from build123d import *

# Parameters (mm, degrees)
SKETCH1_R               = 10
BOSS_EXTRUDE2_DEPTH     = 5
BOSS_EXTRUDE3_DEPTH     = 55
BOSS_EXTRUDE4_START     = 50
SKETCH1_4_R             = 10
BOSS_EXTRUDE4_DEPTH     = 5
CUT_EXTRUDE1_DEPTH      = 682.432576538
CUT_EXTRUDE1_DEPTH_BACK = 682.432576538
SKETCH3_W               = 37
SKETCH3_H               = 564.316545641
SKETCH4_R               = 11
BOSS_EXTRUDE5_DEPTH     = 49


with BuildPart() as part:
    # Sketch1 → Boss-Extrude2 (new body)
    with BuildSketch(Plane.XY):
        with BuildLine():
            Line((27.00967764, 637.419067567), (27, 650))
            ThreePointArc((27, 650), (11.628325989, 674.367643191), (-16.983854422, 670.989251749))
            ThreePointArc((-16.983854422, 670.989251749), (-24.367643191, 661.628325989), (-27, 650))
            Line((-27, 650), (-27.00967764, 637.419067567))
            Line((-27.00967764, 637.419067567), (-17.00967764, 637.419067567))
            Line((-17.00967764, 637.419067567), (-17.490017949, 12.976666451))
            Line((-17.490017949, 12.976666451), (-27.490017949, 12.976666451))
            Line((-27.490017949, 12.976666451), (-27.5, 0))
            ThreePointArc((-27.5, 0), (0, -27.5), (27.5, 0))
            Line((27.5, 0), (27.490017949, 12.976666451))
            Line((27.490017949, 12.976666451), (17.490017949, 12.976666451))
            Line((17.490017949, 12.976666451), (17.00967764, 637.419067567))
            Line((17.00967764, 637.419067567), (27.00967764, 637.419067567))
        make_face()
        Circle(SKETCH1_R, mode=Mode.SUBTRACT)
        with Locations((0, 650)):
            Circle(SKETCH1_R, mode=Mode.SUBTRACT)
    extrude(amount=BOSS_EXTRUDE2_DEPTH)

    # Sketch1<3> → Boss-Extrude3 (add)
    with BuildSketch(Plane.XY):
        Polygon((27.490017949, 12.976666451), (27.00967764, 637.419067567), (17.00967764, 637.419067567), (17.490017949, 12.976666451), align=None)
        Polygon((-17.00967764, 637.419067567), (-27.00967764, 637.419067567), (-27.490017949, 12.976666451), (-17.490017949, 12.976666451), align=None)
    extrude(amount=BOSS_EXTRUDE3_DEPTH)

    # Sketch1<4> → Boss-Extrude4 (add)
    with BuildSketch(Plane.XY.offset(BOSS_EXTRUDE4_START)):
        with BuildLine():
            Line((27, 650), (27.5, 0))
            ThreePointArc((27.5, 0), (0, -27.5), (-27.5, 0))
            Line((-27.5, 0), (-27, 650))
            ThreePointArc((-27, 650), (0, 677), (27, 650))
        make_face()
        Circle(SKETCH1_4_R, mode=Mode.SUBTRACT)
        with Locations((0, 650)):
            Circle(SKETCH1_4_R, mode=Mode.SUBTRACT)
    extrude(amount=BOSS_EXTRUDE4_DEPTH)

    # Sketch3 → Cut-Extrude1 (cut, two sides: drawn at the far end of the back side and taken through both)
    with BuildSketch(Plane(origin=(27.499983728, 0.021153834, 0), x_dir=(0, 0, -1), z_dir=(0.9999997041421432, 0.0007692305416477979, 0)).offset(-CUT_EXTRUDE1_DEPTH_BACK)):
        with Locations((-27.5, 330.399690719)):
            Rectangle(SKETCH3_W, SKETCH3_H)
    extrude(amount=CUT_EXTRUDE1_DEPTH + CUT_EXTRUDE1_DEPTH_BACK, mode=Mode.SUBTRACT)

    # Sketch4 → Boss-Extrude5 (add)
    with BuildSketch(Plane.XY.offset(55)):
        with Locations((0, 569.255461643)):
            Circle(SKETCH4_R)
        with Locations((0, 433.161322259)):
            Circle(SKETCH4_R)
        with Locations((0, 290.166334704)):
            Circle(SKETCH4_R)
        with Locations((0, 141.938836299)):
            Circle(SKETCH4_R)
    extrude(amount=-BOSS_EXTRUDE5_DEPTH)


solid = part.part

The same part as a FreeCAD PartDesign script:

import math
import FreeCAD as App
import Part
import Sketcher
from FreeCAD import Vector
Q = App.Units.Quantity

doc = App.newDocument("Part")
body = doc.addObject("PartDesign::Body", "Body")

# Sketch on XY plane
sketch1 = doc.addObject("Sketcher::SketchObject", "Sketch")
body.addObject(sketch1)
sketch1.AttachmentSupport = (doc.XY_Plane, [""])
sketch1.MapMode = "FlatFace"
sketch1.addGeometry([
    Part.LineSegment(Vector(27, 637, 0), Vector(27, 650, 0)),  # 0
    Part.ArcOfCircle(Part.Circle(Vector(0, 650, 0), Vector(0, 0, 1), 27), math.radians(0), math.radians(129)),  # 1
    Part.ArcOfCircle(Part.Circle(Vector(0, 650, 0), Vector(0, 0, 1), 27), math.radians(129), math.radians(180)),  # 2
    Part.LineSegment(Vector(-27, 650, 0), Vector(-27, 637, 0)),  # 3
    Part.LineSegment(Vector(-27, 637, 0), Vector(-17, 637, 0)),  # 4
    Part.LineSegment(Vector(-17, 637, 0), Vector(-17, 13, 0)),  # 5
    Part.LineSegment(Vector(-17, 13, 0), Vector(-27, 13, 0)),  # 6
    Part.LineSegment(Vector(-27, 13, 0), Vector(-28, 0, 0)),  # 7
    Part.ArcOfCircle(Part.Circle(Vector(0, 0, 0), Vector(0, 0, 1), 28), math.radians(180), math.radians(360)),  # 8
    Part.LineSegment(Vector(28, 0, 0), Vector(27, 13, 0)),  # 9
    Part.LineSegment(Vector(27, 13, 0), Vector(17, 13, 0)),  # 10
    Part.LineSegment(Vector(17, 13, 0), Vector(17, 637, 0)),  # 11
    Part.LineSegment(Vector(17, 637, 0), Vector(27, 637, 0)),  # 12
    Part.Circle(Vector(0, 0, 0), Vector(0, 0, 1), 10),  # 13
    Part.Circle(Vector(0, 650, 0), Vector(0, 0, 1), 10),  # 14
], False)
sketch1.addConstraint([
    Sketcher.Constraint("Coincident", 0, 2, 1, 1),
    Sketcher.Constraint("Tangent", 1, 2, 2, 1),
    Sketcher.Constraint("Coincident", 2, 2, 3, 1),
    Sketcher.Constraint("Coincident", 3, 2, 4, 1),
    Sketcher.Constraint("Coincident", 4, 2, 5, 1),
    Sketcher.Constraint("Coincident", 5, 2, 6, 1),
    Sketcher.Constraint("Coincident", 6, 2, 7, 1),
    Sketcher.Constraint("Coincident", 7, 2, 8, 1),
    Sketcher.Constraint("Coincident", 8, 2, 9, 1),
    Sketcher.Constraint("Coincident", 9, 2, 10, 1),
    Sketcher.Constraint("Coincident", 10, 2, 11, 1),
    Sketcher.Constraint("Coincident", 11, 2, 12, 1),
    Sketcher.Constraint("Coincident", 12, 2, 0, 1),
    Sketcher.Constraint("Horizontal", 4),
    Sketcher.Constraint("Horizontal", 6),
    Sketcher.Constraint("Horizontal", 10),
    Sketcher.Constraint("Horizontal", 12),
    Sketcher.Constraint("Coincident", 8, 3, -1, 1),
    Sketcher.Constraint("Coincident", 13, 3, -1, 1),
    Sketcher.Constraint("Coincident", 14, 3, 1, 3),
    Sketcher.Constraint("Equal", 1, 2),
    Sketcher.Constraint("Equal", 13, 14),
    Sketcher.Constraint("Symmetric", 0, 2, 2, 2, -2),
    Sketcher.Constraint("Symmetric", 6, 2, 9, 2, -2),
    Sketcher.Constraint("Symmetric", 4, 2, 11, 2, -2),
    Sketcher.Constraint("PointOnObject", 7, 2, -1),
    Sketcher.Constraint("PointOnObject", 8, 2, -1),
    Sketcher.Constraint("Parallel", 3, 5),
    Sketcher.Constraint("Parallel", 5, 7),
    Sketcher.Constraint("Parallel", 0, 9),
    Sketcher.Constraint("Parallel", 9, 11),
    Sketcher.Constraint("Horizontal", 14, 3, 0, 2),
    Sketcher.Constraint("Equal", 4, 6),
    Sketcher.Constraint("Diameter", 13, Q("20 mm")),
    Sketcher.Constraint("Radius", 1, Q("27 mm")),
    Sketcher.Constraint("Radius", 8, Q("27.5 mm")),
    Sketcher.Constraint("DistanceX", 4, 1, 4, 2, Q("10 mm")),
    Sketcher.Constraint("DistanceY", -1, 1, 1, 3, Q("650 mm")),
    Sketcher.Constraint("DistanceY", 5, 2, 4, 2, Q("624.442401 mm")),
    Sketcher.Constraint("Distance", 7, Q("12.97667 mm")),
    Sketcher.Constraint("DistanceY", -1, 1, 1, 2, Q("670.989252 mm")),
])
pad1 = doc.addObject("PartDesign::Pad", "Pad")
body.addObject(pad1)
pad1.Profile = sketch1
pad1.Length = 5

# Sketch on XY plane
sketch2 = doc.addObject("Sketcher::SketchObject", "Sketch001")
body.addObject(sketch2)
sketch2.AttachmentSupport = (doc.XY_Plane, [""])
sketch2.MapMode = "FlatFace"
sketch2.addGeometry([
    Part.LineSegment(Vector(27, 13, 0), Vector(27, 637, 0)),  # 0
    Part.LineSegment(Vector(27, 637, 0), Vector(17, 637, 0)),  # 1
    Part.LineSegment(Vector(17, 637, 0), Vector(17, 13, 0)),  # 2
    Part.LineSegment(Vector(17, 13, 0), Vector(27, 13, 0)),  # 3
    Part.LineSegment(Vector(-17, 637, 0), Vector(-27, 637, 0)),  # 4
    Part.LineSegment(Vector(-27, 637, 0), Vector(-27, 13, 0)),  # 5
    Part.LineSegment(Vector(-27, 13, 0), Vector(-17, 13, 0)),  # 6
    Part.LineSegment(Vector(-17, 13, 0), Vector(-17, 637, 0)),  # 7
], False)
sketch2.addConstraint([
    Sketcher.Constraint("Coincident", 0, 2, 1, 1),
    Sketcher.Constraint("Coincident", 1, 2, 2, 1),
    Sketcher.Constraint("Coincident", 2, 2, 3, 1),
    Sketcher.Constraint("Coincident", 3, 2, 0, 1),
    Sketcher.Constraint("Coincident", 4, 2, 5, 1),
    Sketcher.Constraint("Coincident", 5, 2, 6, 1),
    Sketcher.Constraint("Coincident", 6, 2, 7, 1),
    Sketcher.Constraint("Coincident", 7, 2, 4, 1),
    Sketcher.Constraint("Horizontal", 1),
    Sketcher.Constraint("Horizontal", 3),
    Sketcher.Constraint("Horizontal", 4),
    Sketcher.Constraint("Horizontal", 6),
    Sketcher.Constraint("Symmetric", 0, 2, 4, 2, -2),
    Sketcher.Constraint("Symmetric", 3, 2, 5, 2, -2),
    Sketcher.Constraint("Parallel", 0, 2),
    Sketcher.Constraint("Parallel", 5, 7),
    Sketcher.Constraint("Equal", 3, 4),
    Sketcher.Constraint("DistanceX", 1, 2, 1, 1, Q("10 mm")),
    Sketcher.Constraint("DistanceY", 2, 2, 1, 2, Q("624.442401 mm")),
    Sketcher.Constraint("DistanceX", 1, 2, 2, 2, Q("0.48034 mm")),
    Sketcher.Constraint("DistanceX", -1, 1, 0, 2, Q("27.009678 mm")),
    Sketcher.Constraint("DistanceY", -1, 1, 0, 2, Q("637.419068 mm")),
])
pad2 = doc.addObject("PartDesign::Pad", "Pad001")
body.addObject(pad2)
pad2.Profile = sketch2
pad2.Length = 55

# Sketch on XY plane
sketch3 = doc.addObject("Sketcher::SketchObject", "Sketch002")
body.addObject(sketch3)
sketch3.AttachmentSupport = (doc.XY_Plane, [""])
sketch3.MapMode = "FlatFace"
sketch3.AttachmentOffset = App.Placement(Vector(0, 0, 50), App.Rotation())
sketch3.addGeometry([
    Part.LineSegment(Vector(28, 0, 0), Vector(27, 650, 0)),  # 0
    Part.ArcOfCircle(Part.Circle(Vector(0, 650, 0), Vector(0, 0, 1), 27), math.radians(0), math.radians(180)),  # 1
    Part.LineSegment(Vector(-27, 650, 0), Vector(-28, 0, 0)),  # 2
    Part.ArcOfCircle(Part.Circle(Vector(0, 0, 0), Vector(0, 0, 1), 28), math.radians(180), math.radians(360)),  # 3
    Part.Circle(Vector(0, 0, 0), Vector(0, 0, 1), 10),  # 4
    Part.Circle(Vector(0, 650, 0), Vector(0, 0, 1), 10),  # 5
], False)
sketch3.addConstraint([
    Sketcher.Constraint("Coincident", 0, 2, 1, 1),
    Sketcher.Constraint("Coincident", 1, 2, 2, 1),
    Sketcher.Constraint("Coincident", 2, 2, 3, 1),
    Sketcher.Constraint("Coincident", 3, 2, 0, 1),
    Sketcher.Constraint("Coincident", 3, 3, -1, 1),
    Sketcher.Constraint("Coincident", 4, 3, -1, 1),
    Sketcher.Constraint("Coincident", 5, 3, 1, 3),
    Sketcher.Constraint("Equal", 4, 5),
    Sketcher.Constraint("Symmetric", 0, 2, 1, 2, -2),
    Sketcher.Constraint("PointOnObject", 2, 2, -1),
    Sketcher.Constraint("PointOnObject", 3, 2, -1),
    Sketcher.Constraint("Horizontal", 5, 3, 0, 2),
    Sketcher.Constraint("Diameter", 4, Q("20 mm")),
    Sketcher.Constraint("Radius", 1, Q("27 mm")),
    Sketcher.Constraint("Radius", 3, Q("27.5 mm")),
    Sketcher.Constraint("DistanceY", -1, 1, 1, 3, Q("650 mm")),
])
pad3 = doc.addObject("PartDesign::Pad", "Pad002")
body.addObject(pad3)
pad3.Profile = sketch3
pad3.Length = 5

# Sketch on an angled plane
sketch4 = doc.addObject("Sketcher::SketchObject", "Sketch003")
body.addObject(sketch4)
sketch4.Placement = App.Placement(Vector(27.499984, 0.021154, 0), App.Rotation(Vector(0, 0, -1), Vector(-0.000769231, 0.999999704, 0), Vector(0.999999704, 0.000769231, 0), "ZXY"))
sketch4.addGeometry([
    Part.LineSegment(Vector(-46, 613, 0), Vector(-46, 48, 0)),
    Part.LineSegment(Vector(-46, 48, 0), Vector(-9, 48, 0)),
    Part.LineSegment(Vector(-9, 48, 0), Vector(-9, 613, 0)),
    Part.LineSegment(Vector(-9, 613, 0), Vector(-46, 613, 0)),
], False)
sketch4.addConstraint([
    Sketcher.Constraint("Coincident", 0, 2, 1, 1),
    Sketcher.Constraint("Coincident", 1, 2, 2, 1),
    Sketcher.Constraint("Coincident", 2, 2, 3, 1),
    Sketcher.Constraint("Coincident", 3, 2, 0, 1),
    Sketcher.Constraint("Vertical", 0),
    Sketcher.Constraint("Horizontal", 1),
    Sketcher.Constraint("Vertical", 2),
    Sketcher.Constraint("Horizontal", 3),
    Sketcher.Constraint("DistanceX", 1, 1, 1, 2, Q("37 mm")),
    Sketcher.Constraint("DistanceX", 0, 2, -1, 1, Q("46 mm")),
    Sketcher.Constraint("DistanceY", 0, 2, 0, 1, Q("564.316545 mm")),
    Sketcher.Constraint("DistanceY", -1, 1, 0, 2, Q("48.241418 mm")),
])
pocket1 = doc.addObject("PartDesign::Pocket", "Pocket")
body.addObject(pocket1)
pocket1.Profile = sketch4
pocket1.Type = "ThroughAll"
pocket1.Midplane = True

# Sketch on XY plane
sketch5 = doc.addObject("Sketcher::SketchObject", "Sketch004")
body.addObject(sketch5)
sketch5.AttachmentSupport = (doc.XY_Plane, [""])
sketch5.MapMode = "FlatFace"
sketch5.AttachmentOffset = App.Placement(Vector(0, 0, 55), App.Rotation())
sketch5.addGeometry([
    Part.Circle(Vector(0, 569, 0), Vector(0, 0, 1), 11),
    Part.Circle(Vector(0, 433, 0), Vector(0, 0, 1), 11),
    Part.Circle(Vector(0, 290, 0), Vector(0, 0, 1), 11),
    Part.Circle(Vector(0, 142, 0), Vector(0, 0, 1), 11),
], False)
sketch5.addConstraint([
    Sketcher.Constraint("Equal", 0, 1),
    Sketcher.Constraint("Equal", 1, 2),
    Sketcher.Constraint("Equal", 2, 3),
    Sketcher.Constraint("PointOnObject", 0, 3, -2),
    Sketcher.Constraint("PointOnObject", 1, 3, -2),
    Sketcher.Constraint("PointOnObject", 2, 3, -2),
    Sketcher.Constraint("PointOnObject", 3, 3, -2),
    Sketcher.Constraint("Diameter", 0, Q("22 mm")),
    Sketcher.Constraint("DistanceY", 3, 3, 2, 3, Q("148.227498 mm")),
    Sketcher.Constraint("DistanceY", -1, 1, 0, 3, Q("569.255462 mm")),
    Sketcher.Constraint("DistanceY", 1, 3, 0, 3, Q("136.094139 mm")),
    Sketcher.Constraint("DistanceY", -1, 1, 2, 3, Q("290.166335 mm")),
])
pad4 = doc.addObject("PartDesign::Pad", "Pad003")
body.addObject(pad4)
pad4.Profile = sketch5
pad4.Length = 49
pad4.Reversed = True

doc.recompute()
